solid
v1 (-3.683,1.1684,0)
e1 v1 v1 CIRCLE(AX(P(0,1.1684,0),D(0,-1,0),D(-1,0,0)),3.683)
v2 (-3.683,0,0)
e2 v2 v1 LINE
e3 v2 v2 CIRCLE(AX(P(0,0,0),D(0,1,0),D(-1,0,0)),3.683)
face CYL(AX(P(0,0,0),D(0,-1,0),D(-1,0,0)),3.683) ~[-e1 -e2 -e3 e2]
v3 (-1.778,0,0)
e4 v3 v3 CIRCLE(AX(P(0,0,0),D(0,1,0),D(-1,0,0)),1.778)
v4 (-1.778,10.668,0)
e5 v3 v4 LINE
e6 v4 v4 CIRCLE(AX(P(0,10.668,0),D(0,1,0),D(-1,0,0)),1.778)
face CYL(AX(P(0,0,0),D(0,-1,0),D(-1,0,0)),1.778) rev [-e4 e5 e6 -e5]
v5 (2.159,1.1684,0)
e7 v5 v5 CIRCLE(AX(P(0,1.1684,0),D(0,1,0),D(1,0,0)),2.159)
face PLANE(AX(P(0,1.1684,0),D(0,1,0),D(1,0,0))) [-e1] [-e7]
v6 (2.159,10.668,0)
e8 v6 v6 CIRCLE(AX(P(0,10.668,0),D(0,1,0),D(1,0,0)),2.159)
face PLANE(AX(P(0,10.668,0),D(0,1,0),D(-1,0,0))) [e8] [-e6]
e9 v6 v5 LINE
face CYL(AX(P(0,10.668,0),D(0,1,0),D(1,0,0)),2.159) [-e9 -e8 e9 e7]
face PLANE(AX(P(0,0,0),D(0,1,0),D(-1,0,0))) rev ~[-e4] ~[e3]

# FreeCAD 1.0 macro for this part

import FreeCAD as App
import Part
import Sketcher
Q = App.Units.Quantity

doc = App.newDocument("Part")
body = doc.addObject("PartDesign::Body", "Body")

# Sketch on XZ plane
sketch1 = body.newObject("Sketcher::SketchObject", "Sketch")
sketch1.AttachmentSupport = (doc.getObject("XZ_Plane"), [""])
sketch1.MapMode = "FlatFace"
sketch1.addGeometry([
    Part.Circle(App.Vector(0, 0, 0), App.Vector(0, 0, 1), 3.7),
    Part.Circle(App.Vector(0, 0, 0), App.Vector(0, 0, 1), 1.8),
], False)
sketch1.addConstraint([
    Sketcher.Constraint("Coincident", 0, 3, -1, 1),
    Sketcher.Constraint("Coincident", 1, 3, -1, 1),
    Sketcher.Constraint("Diameter", 0, Q("0.29 in")),
    Sketcher.Constraint("Diameter", 1, Q("0.14 in")),
])
pad1 = body.newObject("PartDesign::Pad", "Pad")
pad1.Profile = sketch1
pad1.Length = Q("0.42 in")
pad1.Reversed = True

# Sketch on XZ plane
sketch2 = body.newObject("Sketcher::SketchObject", "Sketch001")
sketch2.AttachmentSupport = (doc.getObject("XZ_Plane"), [""])
sketch2.MapMode = "FlatFace"
sketch2.AttachmentOffset = App.Placement(App.Vector(0, 0, -0.42 * 25.4), App.Rotation())
sketch2.addGeometry([
    Part.Circle(App.Vector(0, 0, 0), App.Vector(0, 0, 1), 3.7),
    Part.Circle(App.Vector(0, 0, 0), App.Vector(0, 0, 1), 2.2),
], False)
sketch2.addConstraint([
    Sketcher.Constraint("Coincident", 0, 3, -1, 1),
    Sketcher.Constraint("Coincident", 1, 3, -1, 1),
    Sketcher.Constraint("Diameter", 1, Q("0.17 in")),
    Sketcher.Constraint("Diameter", 0, Q("0.29 in")),
])
pocket1 = body.newObject("PartDesign::Pocket", "Pocket")
pocket1.Profile = sketch2
pocket1.Length = Q("0.374 in")
pocket1.Reversed = True

doc.recompute()
